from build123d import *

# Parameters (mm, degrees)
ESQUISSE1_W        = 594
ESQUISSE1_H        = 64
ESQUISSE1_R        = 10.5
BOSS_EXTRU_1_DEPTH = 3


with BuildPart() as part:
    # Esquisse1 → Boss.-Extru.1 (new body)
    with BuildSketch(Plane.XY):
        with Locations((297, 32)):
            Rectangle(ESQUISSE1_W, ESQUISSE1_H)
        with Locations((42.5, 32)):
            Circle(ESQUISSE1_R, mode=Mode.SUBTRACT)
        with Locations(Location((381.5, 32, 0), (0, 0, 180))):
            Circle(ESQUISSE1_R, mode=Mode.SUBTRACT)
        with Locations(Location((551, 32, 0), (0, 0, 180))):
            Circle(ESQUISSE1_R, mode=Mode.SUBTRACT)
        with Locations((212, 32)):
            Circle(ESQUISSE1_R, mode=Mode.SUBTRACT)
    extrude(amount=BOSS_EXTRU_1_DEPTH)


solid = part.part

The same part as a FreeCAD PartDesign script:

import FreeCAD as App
import Part
import Sketcher

V = App.Vector
Q = App.Units.Quantity


def add_polygon(sketch, points):
    """Adds a closed chain of lines whose ends are joined by coincident constraints."""
    first, n = sketch.GeometryCount, len(points)
    for a, b in zip(points, points[1:] + points[:1]):
        sketch.addGeometry(Part.LineSegment(App.Vector(*a, 0), App.Vector(*b, 0)), False)
    for i in range(n):
        sketch.addConstraint(Sketcher.Constraint("Coincident", first + i, 2, first + (i + 1) % n, 1))

doc = App.newDocument("Part")
body = doc.addObject("PartDesign::Body", "Body")

# Sketch on XY plane
sketch1 = body.newObject("Sketcher::SketchObject", "Sketch")
sketch1.AttachmentSupport = (doc.getObject("XY_Plane"), [""])
sketch1.MapMode = "FlatFace"
add_polygon(sketch1, [(0, 64), (0, 0), (594, 0), (594, 64)])  # lines 0-3
sketch1.addGeometry(Part.Circle(V(42, 32, 0), V(0, 0, 1), 10), False)  # 4
sketch1.addGeometry(Part.Circle(V(212, 32, 0), V(0, 0, 1), 10), False)  # 5
sketch1.addGeometry(Part.Circle(V(382, 32, 0), V(0, 0, 1), 10), False)  # 6
sketch1.addGeometry(Part.Circle(V(551, 32, 0), V(0, 0, 1), 10), False)  # 7
sketch1.addConstraint(Sketcher.Constraint("Vertical", 0))
sketch1.addConstraint(Sketcher.Constraint("Horizontal", 1))
sketch1.addConstraint(Sketcher.Constraint("Vertical", 2))
sketch1.addConstraint(Sketcher.Constraint("Horizontal", 3))
sketch1.addConstraint(Sketcher.Constraint("Coincident", 0, 2, -1, 1))
sketch1.addConstraint(Sketcher.Constraint("Equal", 4, 5))
sketch1.addConstraint(Sketcher.Constraint("Equal", 5, 6))
sketch1.addConstraint(Sketcher.Constraint("Equal", 6, 7))
sketch1.addConstraint(Sketcher.Constraint("Horizontal", 4, 3, 5, 3))
sketch1.addConstraint(Sketcher.Constraint("Horizontal", 5, 3, 6, 3))
sketch1.addConstraint(Sketcher.Constraint("Horizontal", 6, 3, 7, 3))
sketch1.addConstraint(Sketcher.Constraint("Diameter", 4, Q("21 mm")))
sketch1.addConstraint(Sketcher.Constraint("DistanceX", 1, 1, 1, 2, Q("594 mm")))
sketch1.addConstraint(Sketcher.Constraint("DistanceY", 0, 2, 0, 1, Q("64 mm")))
sketch1.addConstraint(Sketcher.Constraint("DistanceY", -1, 1, 4, 3, Q("32 mm")))
sketch1.addConstraint(Sketcher.Constraint("DistanceX", -1, 1, 5, 3, Q("212 mm")))
sketch1.addConstraint(Sketcher.Constraint("DistanceX", -1, 1, 7, 3, Q("551 mm")))
sketch1.addConstraint(Sketcher.Constraint("DistanceX", 4, 3, 6, 3, Q("339 mm")))
sketch1.addConstraint(Sketcher.Constraint("DistanceX", -1, 1, 4, 3, Q("42.5 mm")))
pad1 = body.newObject("PartDesign::Pad", "Pad")
pad1.Profile = sketch1
pad1.Length = 3

doc.recompute()
